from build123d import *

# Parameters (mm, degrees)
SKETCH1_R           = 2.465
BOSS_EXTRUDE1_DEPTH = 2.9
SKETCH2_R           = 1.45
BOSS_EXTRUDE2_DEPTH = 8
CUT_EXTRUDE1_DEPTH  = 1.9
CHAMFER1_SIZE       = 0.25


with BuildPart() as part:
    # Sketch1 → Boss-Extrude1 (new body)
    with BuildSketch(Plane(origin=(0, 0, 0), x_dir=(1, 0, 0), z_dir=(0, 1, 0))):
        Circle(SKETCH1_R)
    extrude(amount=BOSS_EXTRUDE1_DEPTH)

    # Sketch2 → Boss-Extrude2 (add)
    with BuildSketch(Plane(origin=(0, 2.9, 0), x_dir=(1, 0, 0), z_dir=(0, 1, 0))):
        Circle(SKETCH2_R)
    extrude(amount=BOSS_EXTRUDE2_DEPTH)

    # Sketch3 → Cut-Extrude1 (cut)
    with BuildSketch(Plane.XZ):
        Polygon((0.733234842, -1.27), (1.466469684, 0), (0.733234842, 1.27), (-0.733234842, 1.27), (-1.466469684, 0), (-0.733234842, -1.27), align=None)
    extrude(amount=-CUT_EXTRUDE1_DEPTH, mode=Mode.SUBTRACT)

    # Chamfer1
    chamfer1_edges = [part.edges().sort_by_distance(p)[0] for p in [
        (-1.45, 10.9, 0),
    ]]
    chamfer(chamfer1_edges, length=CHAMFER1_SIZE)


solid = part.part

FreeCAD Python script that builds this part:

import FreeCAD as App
import Part
import Sketcher
from FreeCAD import Vector
Q = App.Units.Quantity


def edges_at(feature, points):
    """Names of the edges that pass closest to the given points."""
    edges = feature.Shape.Edges
    near = lambda p: min(range(len(edges)), key=lambda i: edges[i].distToShape(Part.Vertex(*p))[0])
    return sorted({f"Edge{near(p) + 1}" for p in points})


def add_polygon(sketch, points):
    """Adds a closed chain of lines whose ends are joined by coincident constraints."""
    first, n = sketch.GeometryCount, len(points)
    for a, b in zip(points, points[1:] + points[:1]):
        sketch.addGeometry(Part.LineSegment(App.Vector(*a, 0), App.Vector(*b, 0)), False)
    for i in range(n):
        sketch.addConstraint(Sketcher.Constraint("Coincident", first + i, 2, first + (i + 1) % n, 1))

doc = App.newDocument("Part")
body = doc.addObject("PartDesign::Body", "Body")

sketch1 = body.newObject("Sketcher::SketchObject", "Sketch")
sketch1.AttachmentSupport = (doc.getObject("XZ_Plane"), [""])
sketch1.MapMode = "FlatFace"
sketch1.addGeometry(Part.Circle(Vector(0, 0, 0), Vector(0, 0, 1), 2.5), False)
sketch1.addConstraint([
    Sketcher.Constraint("Coincident", 0, 3, -1, 1),
    Sketcher.Constraint("Diameter", 0, 4.93),
])
pad1 = body.newObject("PartDesign::Pad", "Pad")
pad1.Profile = sketch1
pad1.Length = 2.9
pad1.Reversed = True

sketch2 = body.newObject("Sketcher::SketchObject", "Sketch001")
sketch2.AttachmentSupport = (doc.getObject("XZ_Plane"), [""])
sketch2.MapMode = "FlatFace"
sketch2.AttachmentOffset = App.Placement(Vector(0, 0, -2.9), App.Rotation())
sketch2.addGeometry(Part.Circle(Vector(0, 0, 0), Vector(0, 0, 1), 1.4), False)
sketch2.addConstraint([
    Sketcher.Constraint("Coincident", 0, 3, -1, 1),
    Sketcher.Constraint("Diameter", 0, 2.9),
])
pad2 = body.newObject("PartDesign::Pad", "Pad001")
pad2.Profile = sketch2
pad2.Length = 8
pad2.Reversed = True

sketch3 = body.newObject("Sketcher::SketchObject", "Sketch002")
sketch3.AttachmentSupport = (doc.getObject("XZ_Plane"), [""])
sketch3.MapMode = "FlatFace"
add_polygon(sketch3, [(0.7, -1.3), (1.5, 0), (0.7, 1.3), (-0.7, 1.3), (-1.5, 0), (-0.7, -1.3)])
sketch3.addConstraint([
    Sketcher.Constraint("Horizontal", 2),
    Sketcher.Constraint("Horizontal", 5),
    Sketcher.Constraint("Symmetric", 0, 2, 3, 2, -1, 1),
    Sketcher.Constraint("Symmetric", 1, 2, 4, 2, -1, 1),
    Sketcher.Constraint("PointOnObject", 0, 2, -1),
    Sketcher.Constraint("Parallel", 0, 3),
    Sketcher.Constraint("Vertical", 2, 2, 4, 2),
    Sketcher.Constraint("Angle", 0, Q("60 deg")),
    Sketcher.Constraint("DistanceY", -1, 1, 1, 2, 1.27),
    Sketcher.Constraint("DistanceX", 2, 2, 2, 1, 1.46647),
])
pocket1 = body.newObject("PartDesign::Pocket", "Pocket")
pocket1.Profile = sketch3
pocket1.Length = 1.9
doc.recompute()

chamfer = body.newObject("PartDesign::Chamfer", "Chamfer")
chamfer.Base = (pocket1, edges_at(pocket1, [(-1.45, 10.9, 0)]))
chamfer.Size = 0.25

doc.recompute()
